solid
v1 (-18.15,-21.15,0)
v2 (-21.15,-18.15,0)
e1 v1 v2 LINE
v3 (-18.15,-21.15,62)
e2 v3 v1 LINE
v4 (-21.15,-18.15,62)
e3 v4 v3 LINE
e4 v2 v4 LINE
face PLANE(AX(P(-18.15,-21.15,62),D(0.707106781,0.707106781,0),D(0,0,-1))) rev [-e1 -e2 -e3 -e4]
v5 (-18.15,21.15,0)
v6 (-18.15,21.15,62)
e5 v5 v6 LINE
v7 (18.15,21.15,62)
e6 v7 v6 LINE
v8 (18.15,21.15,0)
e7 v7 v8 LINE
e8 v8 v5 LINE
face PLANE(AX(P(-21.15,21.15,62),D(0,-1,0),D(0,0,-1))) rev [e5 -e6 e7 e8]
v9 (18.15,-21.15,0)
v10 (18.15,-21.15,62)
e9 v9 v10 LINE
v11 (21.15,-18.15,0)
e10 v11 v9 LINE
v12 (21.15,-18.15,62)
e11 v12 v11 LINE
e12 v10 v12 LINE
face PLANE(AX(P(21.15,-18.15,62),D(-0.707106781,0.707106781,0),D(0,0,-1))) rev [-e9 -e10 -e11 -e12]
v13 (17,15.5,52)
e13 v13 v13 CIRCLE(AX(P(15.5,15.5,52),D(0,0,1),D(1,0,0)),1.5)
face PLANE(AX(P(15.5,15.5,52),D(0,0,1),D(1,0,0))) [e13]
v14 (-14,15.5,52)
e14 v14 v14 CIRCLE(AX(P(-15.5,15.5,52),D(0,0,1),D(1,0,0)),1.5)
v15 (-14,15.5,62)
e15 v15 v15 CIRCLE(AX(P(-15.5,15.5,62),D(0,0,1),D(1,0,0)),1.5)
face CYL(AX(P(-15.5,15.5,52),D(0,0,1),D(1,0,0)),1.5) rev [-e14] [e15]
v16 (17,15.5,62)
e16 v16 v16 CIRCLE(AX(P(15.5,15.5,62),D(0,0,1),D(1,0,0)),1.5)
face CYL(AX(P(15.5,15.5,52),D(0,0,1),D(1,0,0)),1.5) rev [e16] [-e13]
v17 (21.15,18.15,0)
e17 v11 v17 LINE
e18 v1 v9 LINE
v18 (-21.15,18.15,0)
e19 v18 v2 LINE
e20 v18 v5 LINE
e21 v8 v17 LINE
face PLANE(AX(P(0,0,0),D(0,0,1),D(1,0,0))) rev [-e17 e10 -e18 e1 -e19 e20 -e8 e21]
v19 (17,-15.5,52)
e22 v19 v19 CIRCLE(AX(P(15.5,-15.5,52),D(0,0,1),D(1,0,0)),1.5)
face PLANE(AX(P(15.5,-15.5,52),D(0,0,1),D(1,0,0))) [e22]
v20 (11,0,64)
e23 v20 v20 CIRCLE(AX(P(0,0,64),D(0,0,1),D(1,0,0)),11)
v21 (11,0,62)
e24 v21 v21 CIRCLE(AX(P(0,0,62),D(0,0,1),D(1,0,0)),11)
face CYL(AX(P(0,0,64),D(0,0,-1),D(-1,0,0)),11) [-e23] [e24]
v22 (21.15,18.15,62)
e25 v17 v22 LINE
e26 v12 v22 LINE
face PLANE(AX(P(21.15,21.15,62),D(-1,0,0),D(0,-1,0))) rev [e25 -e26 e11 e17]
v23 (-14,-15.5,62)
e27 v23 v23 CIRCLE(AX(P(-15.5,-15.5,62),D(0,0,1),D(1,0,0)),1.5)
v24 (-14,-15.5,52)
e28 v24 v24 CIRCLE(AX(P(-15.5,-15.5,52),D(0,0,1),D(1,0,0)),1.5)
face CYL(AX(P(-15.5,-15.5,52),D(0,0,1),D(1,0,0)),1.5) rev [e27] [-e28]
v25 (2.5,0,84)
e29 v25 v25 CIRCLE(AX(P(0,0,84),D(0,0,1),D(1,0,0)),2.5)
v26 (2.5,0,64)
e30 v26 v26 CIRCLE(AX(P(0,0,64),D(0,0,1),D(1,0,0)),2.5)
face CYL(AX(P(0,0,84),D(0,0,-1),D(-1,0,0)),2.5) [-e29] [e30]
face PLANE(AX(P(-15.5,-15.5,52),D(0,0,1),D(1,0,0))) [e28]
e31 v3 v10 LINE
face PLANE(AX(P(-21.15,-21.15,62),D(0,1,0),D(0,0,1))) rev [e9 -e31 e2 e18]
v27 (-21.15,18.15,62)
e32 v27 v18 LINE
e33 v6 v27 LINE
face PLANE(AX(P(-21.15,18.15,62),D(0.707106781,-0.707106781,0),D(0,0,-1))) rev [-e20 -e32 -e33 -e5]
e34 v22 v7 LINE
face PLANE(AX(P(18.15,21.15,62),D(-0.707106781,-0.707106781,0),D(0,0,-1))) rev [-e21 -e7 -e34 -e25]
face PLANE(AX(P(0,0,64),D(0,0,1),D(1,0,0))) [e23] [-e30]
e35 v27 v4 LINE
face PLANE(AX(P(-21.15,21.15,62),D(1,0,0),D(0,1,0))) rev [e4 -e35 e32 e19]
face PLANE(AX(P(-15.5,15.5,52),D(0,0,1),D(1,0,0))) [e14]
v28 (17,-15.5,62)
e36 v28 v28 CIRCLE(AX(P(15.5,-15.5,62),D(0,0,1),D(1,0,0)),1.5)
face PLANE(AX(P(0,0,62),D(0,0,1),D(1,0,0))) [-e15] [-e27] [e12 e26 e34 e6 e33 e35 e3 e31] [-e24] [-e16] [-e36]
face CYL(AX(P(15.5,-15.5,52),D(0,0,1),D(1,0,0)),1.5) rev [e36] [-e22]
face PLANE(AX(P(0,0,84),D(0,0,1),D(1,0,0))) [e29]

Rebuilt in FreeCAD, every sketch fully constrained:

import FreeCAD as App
import Part
import Sketcher

V = App.Vector


def edges_at(feature, points):
    """Names of the edges that pass closest to the given points."""
    edges = feature.Shape.Edges
    near = lambda p: min(range(len(edges)), key=lambda i: edges[i].distToShape(Part.Vertex(*p))[0])
    return sorted({f"Edge{near(p) + 1}" for p in points})

doc = App.newDocument("Part")
params = doc.addObject("Spreadsheet::Sheet", "Params")
for row, (alias, value) in enumerate([
    ("sketch1_width", "42.3 mm"),
    ("pad1_length", "62 mm"),
    ("sketch2_diameter", "22 mm"),
    ("pad2_length", "2 mm"),
    ("sketch3_diameter", "5 mm"),
    ("pad3_length", "20 mm"),
    ("chamfer_size", "3 mm"),
    ("sketch4_diameter", "3 mm"),
    ("pocket1_length", "10 mm"),
], start=1):
    params.set(f"A{row}", alias)
    params.set(f"B{row}", "=" + value)
    params.setAlias(f"B{row}", alias)

body = doc.addObject("PartDesign::Body", "Body")

sketch1 = body.newObject("Sketcher::SketchObject", "Sketch")
sketch1.AttachmentSupport = (doc.getObject("XY_Plane"), [""])
sketch1.MapMode = "FlatFace"
sketch1.addGeometry(Part.LineSegment(V(-21, 21, 0), V(-21, -21, 0)), False)
sketch1.addGeometry(Part.LineSegment(V(-21, -21, 0), V(21, -21, 0)), False)
sketch1.addGeometry(Part.LineSegment(V(21, -21, 0), V(21, 21, 0)), False)
sketch1.addGeometry(Part.LineSegment(V(21, 21, 0), V(-21, 21, 0)), False)
sketch1.addConstraint(Sketcher.Constraint("Coincident", 0, 2, 1, 1))
sketch1.addConstraint(Sketcher.Constraint("Coincident", 1, 2, 2, 1))
sketch1.addConstraint(Sketcher.Constraint("Coincident", 2, 2, 3, 1))
sketch1.addConstraint(Sketcher.Constraint("Coincident", 3, 2, 0, 1))
sketch1.addConstraint(Sketcher.Constraint("Vertical", 0))
sketch1.addConstraint(Sketcher.Constraint("Horizontal", 1))
sketch1.addConstraint(Sketcher.Constraint("Vertical", 2))
sketch1.addConstraint(Sketcher.Constraint("Horizontal", 3))
sketch1.addConstraint(Sketcher.Constraint("Symmetric", 0, 2, 2, 2, -1, 1))
sketch1.addConstraint(Sketcher.Constraint("Equal", 3, 0))
sketch1.addConstraint(Sketcher.Constraint("DistanceX", 1, 1, 1, 2, 42.3))
sketch1.setExpression("Constraints[10]", "Params.sketch1_width")
pad1 = body.newObject("PartDesign::Pad", "Pad")
pad1.Profile = sketch1
pad1.setExpression("Length", "Params.pad1_length")

sketch2 = body.newObject("Sketcher::SketchObject", "Sketch001")
sketch2.AttachmentSupport = (doc.getObject("XY_Plane"), [""])
sketch2.MapMode = "FlatFace"
sketch2.AttachmentOffset = App.Placement(V(0, 0, 62), App.Rotation())
sketch2.addGeometry(Part.Circle(V(0, 0, 0), V(0, 0, 1), 11), False)
sketch2.addConstraint(Sketcher.Constraint("Coincident", 0, 3, -1, 1))
sketch2.addConstraint(Sketcher.Constraint("Diameter", 0, 22.0))
sketch2.setExpression("Constraints[1]", "Params.sketch2_diameter")
pad2 = body.newObject("PartDesign::Pad", "Pad001")
pad2.Profile = sketch2
pad2.setExpression("Length", "Params.pad2_length")

sketch3 = body.newObject("Sketcher::SketchObject", "Sketch002")
sketch3.AttachmentSupport = (doc.getObject("XY_Plane"), [""])
sketch3.MapMode = "FlatFace"
sketch3.AttachmentOffset = App.Placement(V(0, 0, 64), App.Rotation())
sketch3.addGeometry(Part.Circle(V(0, 0, 0), V(0, 0, 1), 2.5), False)
sketch3.addConstraint(Sketcher.Constraint("Coincident", 0, 3, -1, 1))
sketch3.addConstraint(Sketcher.Constraint("Diameter", 0, 5.0))
sketch3.setExpression("Constraints[1]", "Params.sketch3_diameter")
pad3 = body.newObject("PartDesign::Pad", "Pad002")
pad3.Profile = sketch3
pad3.setExpression("Length", "Params.pad3_length")
doc.recompute()

chamfer = body.newObject("PartDesign::Chamfer", "Chamfer")
chamfer.Base = (pad3, edges_at(pad3, [
    (21.15, -21.15, 31),
    (-21.15, -21.15, 31),
    (-21.15, 21.15, 31),
    (21.15, 21.15, 31),
]))
chamfer.setExpression("Size", "Params.chamfer_size")

sketch4 = body.newObject("Sketcher::SketchObject", "Sketch003")
sketch4.AttachmentSupport = (doc.getObject("XY_Plane"), [""])
sketch4.MapMode = "FlatFace"
sketch4.AttachmentOffset = App.Placement(V(0, 0, 62), App.Rotation())
sketch4.addGeometry(Part.Circle(V(15.5, -15.5, 0), V(0, 0, 1), 1.5), False)
sketch4.addGeometry(Part.Circle(V(-15.5, -15.5, 0), V(0, 0, 1), 1.5), False)
sketch4.addGeometry(Part.Circle(V(15.5, 15.5, 0), V(0, 0, 1), 1.5), False)
sketch4.addGeometry(Part.Circle(V(-15.5, 15.5, 0), V(0, 0, 1), 1.5), False)
sketch4.addConstraint(Sketcher.Constraint("Equal", 0, 1))
sketch4.addConstraint(Sketcher.Constraint("Equal", 1, 2))
sketch4.addConstraint(Sketcher.Constraint("Equal", 2, 3))
sketch4.addConstraint(Sketcher.Constraint("Symmetric", 1, 3, 2, 3, -1, 1))
sketch4.addConstraint(Sketcher.Constraint("Symmetric", 0, 3, 3, 3, -1, 1))
sketch4.addConstraint(Sketcher.Constraint("Symmetric", 0, 3, 1, 3, -2))
sketch4.addConstraint(Sketcher.Constraint("Diameter", 0, 3.0))
sketch4.addConstraint(Sketcher.Constraint("DistanceX", 1, 3, 0, 3, 31.0))
sketch4.addConstraint(Sketcher.Constraint("DistanceY", 0, 3, 2, 3, 31.0))
sketch4.setExpression("Constraints[6]", "Params.sketch4_diameter")
pocket1 = body.newObject("PartDesign::Pocket", "Pocket")
pocket1.Profile = sketch4
pocket1.setExpression("Length", "Params.pocket1_length")

doc.recompute()
